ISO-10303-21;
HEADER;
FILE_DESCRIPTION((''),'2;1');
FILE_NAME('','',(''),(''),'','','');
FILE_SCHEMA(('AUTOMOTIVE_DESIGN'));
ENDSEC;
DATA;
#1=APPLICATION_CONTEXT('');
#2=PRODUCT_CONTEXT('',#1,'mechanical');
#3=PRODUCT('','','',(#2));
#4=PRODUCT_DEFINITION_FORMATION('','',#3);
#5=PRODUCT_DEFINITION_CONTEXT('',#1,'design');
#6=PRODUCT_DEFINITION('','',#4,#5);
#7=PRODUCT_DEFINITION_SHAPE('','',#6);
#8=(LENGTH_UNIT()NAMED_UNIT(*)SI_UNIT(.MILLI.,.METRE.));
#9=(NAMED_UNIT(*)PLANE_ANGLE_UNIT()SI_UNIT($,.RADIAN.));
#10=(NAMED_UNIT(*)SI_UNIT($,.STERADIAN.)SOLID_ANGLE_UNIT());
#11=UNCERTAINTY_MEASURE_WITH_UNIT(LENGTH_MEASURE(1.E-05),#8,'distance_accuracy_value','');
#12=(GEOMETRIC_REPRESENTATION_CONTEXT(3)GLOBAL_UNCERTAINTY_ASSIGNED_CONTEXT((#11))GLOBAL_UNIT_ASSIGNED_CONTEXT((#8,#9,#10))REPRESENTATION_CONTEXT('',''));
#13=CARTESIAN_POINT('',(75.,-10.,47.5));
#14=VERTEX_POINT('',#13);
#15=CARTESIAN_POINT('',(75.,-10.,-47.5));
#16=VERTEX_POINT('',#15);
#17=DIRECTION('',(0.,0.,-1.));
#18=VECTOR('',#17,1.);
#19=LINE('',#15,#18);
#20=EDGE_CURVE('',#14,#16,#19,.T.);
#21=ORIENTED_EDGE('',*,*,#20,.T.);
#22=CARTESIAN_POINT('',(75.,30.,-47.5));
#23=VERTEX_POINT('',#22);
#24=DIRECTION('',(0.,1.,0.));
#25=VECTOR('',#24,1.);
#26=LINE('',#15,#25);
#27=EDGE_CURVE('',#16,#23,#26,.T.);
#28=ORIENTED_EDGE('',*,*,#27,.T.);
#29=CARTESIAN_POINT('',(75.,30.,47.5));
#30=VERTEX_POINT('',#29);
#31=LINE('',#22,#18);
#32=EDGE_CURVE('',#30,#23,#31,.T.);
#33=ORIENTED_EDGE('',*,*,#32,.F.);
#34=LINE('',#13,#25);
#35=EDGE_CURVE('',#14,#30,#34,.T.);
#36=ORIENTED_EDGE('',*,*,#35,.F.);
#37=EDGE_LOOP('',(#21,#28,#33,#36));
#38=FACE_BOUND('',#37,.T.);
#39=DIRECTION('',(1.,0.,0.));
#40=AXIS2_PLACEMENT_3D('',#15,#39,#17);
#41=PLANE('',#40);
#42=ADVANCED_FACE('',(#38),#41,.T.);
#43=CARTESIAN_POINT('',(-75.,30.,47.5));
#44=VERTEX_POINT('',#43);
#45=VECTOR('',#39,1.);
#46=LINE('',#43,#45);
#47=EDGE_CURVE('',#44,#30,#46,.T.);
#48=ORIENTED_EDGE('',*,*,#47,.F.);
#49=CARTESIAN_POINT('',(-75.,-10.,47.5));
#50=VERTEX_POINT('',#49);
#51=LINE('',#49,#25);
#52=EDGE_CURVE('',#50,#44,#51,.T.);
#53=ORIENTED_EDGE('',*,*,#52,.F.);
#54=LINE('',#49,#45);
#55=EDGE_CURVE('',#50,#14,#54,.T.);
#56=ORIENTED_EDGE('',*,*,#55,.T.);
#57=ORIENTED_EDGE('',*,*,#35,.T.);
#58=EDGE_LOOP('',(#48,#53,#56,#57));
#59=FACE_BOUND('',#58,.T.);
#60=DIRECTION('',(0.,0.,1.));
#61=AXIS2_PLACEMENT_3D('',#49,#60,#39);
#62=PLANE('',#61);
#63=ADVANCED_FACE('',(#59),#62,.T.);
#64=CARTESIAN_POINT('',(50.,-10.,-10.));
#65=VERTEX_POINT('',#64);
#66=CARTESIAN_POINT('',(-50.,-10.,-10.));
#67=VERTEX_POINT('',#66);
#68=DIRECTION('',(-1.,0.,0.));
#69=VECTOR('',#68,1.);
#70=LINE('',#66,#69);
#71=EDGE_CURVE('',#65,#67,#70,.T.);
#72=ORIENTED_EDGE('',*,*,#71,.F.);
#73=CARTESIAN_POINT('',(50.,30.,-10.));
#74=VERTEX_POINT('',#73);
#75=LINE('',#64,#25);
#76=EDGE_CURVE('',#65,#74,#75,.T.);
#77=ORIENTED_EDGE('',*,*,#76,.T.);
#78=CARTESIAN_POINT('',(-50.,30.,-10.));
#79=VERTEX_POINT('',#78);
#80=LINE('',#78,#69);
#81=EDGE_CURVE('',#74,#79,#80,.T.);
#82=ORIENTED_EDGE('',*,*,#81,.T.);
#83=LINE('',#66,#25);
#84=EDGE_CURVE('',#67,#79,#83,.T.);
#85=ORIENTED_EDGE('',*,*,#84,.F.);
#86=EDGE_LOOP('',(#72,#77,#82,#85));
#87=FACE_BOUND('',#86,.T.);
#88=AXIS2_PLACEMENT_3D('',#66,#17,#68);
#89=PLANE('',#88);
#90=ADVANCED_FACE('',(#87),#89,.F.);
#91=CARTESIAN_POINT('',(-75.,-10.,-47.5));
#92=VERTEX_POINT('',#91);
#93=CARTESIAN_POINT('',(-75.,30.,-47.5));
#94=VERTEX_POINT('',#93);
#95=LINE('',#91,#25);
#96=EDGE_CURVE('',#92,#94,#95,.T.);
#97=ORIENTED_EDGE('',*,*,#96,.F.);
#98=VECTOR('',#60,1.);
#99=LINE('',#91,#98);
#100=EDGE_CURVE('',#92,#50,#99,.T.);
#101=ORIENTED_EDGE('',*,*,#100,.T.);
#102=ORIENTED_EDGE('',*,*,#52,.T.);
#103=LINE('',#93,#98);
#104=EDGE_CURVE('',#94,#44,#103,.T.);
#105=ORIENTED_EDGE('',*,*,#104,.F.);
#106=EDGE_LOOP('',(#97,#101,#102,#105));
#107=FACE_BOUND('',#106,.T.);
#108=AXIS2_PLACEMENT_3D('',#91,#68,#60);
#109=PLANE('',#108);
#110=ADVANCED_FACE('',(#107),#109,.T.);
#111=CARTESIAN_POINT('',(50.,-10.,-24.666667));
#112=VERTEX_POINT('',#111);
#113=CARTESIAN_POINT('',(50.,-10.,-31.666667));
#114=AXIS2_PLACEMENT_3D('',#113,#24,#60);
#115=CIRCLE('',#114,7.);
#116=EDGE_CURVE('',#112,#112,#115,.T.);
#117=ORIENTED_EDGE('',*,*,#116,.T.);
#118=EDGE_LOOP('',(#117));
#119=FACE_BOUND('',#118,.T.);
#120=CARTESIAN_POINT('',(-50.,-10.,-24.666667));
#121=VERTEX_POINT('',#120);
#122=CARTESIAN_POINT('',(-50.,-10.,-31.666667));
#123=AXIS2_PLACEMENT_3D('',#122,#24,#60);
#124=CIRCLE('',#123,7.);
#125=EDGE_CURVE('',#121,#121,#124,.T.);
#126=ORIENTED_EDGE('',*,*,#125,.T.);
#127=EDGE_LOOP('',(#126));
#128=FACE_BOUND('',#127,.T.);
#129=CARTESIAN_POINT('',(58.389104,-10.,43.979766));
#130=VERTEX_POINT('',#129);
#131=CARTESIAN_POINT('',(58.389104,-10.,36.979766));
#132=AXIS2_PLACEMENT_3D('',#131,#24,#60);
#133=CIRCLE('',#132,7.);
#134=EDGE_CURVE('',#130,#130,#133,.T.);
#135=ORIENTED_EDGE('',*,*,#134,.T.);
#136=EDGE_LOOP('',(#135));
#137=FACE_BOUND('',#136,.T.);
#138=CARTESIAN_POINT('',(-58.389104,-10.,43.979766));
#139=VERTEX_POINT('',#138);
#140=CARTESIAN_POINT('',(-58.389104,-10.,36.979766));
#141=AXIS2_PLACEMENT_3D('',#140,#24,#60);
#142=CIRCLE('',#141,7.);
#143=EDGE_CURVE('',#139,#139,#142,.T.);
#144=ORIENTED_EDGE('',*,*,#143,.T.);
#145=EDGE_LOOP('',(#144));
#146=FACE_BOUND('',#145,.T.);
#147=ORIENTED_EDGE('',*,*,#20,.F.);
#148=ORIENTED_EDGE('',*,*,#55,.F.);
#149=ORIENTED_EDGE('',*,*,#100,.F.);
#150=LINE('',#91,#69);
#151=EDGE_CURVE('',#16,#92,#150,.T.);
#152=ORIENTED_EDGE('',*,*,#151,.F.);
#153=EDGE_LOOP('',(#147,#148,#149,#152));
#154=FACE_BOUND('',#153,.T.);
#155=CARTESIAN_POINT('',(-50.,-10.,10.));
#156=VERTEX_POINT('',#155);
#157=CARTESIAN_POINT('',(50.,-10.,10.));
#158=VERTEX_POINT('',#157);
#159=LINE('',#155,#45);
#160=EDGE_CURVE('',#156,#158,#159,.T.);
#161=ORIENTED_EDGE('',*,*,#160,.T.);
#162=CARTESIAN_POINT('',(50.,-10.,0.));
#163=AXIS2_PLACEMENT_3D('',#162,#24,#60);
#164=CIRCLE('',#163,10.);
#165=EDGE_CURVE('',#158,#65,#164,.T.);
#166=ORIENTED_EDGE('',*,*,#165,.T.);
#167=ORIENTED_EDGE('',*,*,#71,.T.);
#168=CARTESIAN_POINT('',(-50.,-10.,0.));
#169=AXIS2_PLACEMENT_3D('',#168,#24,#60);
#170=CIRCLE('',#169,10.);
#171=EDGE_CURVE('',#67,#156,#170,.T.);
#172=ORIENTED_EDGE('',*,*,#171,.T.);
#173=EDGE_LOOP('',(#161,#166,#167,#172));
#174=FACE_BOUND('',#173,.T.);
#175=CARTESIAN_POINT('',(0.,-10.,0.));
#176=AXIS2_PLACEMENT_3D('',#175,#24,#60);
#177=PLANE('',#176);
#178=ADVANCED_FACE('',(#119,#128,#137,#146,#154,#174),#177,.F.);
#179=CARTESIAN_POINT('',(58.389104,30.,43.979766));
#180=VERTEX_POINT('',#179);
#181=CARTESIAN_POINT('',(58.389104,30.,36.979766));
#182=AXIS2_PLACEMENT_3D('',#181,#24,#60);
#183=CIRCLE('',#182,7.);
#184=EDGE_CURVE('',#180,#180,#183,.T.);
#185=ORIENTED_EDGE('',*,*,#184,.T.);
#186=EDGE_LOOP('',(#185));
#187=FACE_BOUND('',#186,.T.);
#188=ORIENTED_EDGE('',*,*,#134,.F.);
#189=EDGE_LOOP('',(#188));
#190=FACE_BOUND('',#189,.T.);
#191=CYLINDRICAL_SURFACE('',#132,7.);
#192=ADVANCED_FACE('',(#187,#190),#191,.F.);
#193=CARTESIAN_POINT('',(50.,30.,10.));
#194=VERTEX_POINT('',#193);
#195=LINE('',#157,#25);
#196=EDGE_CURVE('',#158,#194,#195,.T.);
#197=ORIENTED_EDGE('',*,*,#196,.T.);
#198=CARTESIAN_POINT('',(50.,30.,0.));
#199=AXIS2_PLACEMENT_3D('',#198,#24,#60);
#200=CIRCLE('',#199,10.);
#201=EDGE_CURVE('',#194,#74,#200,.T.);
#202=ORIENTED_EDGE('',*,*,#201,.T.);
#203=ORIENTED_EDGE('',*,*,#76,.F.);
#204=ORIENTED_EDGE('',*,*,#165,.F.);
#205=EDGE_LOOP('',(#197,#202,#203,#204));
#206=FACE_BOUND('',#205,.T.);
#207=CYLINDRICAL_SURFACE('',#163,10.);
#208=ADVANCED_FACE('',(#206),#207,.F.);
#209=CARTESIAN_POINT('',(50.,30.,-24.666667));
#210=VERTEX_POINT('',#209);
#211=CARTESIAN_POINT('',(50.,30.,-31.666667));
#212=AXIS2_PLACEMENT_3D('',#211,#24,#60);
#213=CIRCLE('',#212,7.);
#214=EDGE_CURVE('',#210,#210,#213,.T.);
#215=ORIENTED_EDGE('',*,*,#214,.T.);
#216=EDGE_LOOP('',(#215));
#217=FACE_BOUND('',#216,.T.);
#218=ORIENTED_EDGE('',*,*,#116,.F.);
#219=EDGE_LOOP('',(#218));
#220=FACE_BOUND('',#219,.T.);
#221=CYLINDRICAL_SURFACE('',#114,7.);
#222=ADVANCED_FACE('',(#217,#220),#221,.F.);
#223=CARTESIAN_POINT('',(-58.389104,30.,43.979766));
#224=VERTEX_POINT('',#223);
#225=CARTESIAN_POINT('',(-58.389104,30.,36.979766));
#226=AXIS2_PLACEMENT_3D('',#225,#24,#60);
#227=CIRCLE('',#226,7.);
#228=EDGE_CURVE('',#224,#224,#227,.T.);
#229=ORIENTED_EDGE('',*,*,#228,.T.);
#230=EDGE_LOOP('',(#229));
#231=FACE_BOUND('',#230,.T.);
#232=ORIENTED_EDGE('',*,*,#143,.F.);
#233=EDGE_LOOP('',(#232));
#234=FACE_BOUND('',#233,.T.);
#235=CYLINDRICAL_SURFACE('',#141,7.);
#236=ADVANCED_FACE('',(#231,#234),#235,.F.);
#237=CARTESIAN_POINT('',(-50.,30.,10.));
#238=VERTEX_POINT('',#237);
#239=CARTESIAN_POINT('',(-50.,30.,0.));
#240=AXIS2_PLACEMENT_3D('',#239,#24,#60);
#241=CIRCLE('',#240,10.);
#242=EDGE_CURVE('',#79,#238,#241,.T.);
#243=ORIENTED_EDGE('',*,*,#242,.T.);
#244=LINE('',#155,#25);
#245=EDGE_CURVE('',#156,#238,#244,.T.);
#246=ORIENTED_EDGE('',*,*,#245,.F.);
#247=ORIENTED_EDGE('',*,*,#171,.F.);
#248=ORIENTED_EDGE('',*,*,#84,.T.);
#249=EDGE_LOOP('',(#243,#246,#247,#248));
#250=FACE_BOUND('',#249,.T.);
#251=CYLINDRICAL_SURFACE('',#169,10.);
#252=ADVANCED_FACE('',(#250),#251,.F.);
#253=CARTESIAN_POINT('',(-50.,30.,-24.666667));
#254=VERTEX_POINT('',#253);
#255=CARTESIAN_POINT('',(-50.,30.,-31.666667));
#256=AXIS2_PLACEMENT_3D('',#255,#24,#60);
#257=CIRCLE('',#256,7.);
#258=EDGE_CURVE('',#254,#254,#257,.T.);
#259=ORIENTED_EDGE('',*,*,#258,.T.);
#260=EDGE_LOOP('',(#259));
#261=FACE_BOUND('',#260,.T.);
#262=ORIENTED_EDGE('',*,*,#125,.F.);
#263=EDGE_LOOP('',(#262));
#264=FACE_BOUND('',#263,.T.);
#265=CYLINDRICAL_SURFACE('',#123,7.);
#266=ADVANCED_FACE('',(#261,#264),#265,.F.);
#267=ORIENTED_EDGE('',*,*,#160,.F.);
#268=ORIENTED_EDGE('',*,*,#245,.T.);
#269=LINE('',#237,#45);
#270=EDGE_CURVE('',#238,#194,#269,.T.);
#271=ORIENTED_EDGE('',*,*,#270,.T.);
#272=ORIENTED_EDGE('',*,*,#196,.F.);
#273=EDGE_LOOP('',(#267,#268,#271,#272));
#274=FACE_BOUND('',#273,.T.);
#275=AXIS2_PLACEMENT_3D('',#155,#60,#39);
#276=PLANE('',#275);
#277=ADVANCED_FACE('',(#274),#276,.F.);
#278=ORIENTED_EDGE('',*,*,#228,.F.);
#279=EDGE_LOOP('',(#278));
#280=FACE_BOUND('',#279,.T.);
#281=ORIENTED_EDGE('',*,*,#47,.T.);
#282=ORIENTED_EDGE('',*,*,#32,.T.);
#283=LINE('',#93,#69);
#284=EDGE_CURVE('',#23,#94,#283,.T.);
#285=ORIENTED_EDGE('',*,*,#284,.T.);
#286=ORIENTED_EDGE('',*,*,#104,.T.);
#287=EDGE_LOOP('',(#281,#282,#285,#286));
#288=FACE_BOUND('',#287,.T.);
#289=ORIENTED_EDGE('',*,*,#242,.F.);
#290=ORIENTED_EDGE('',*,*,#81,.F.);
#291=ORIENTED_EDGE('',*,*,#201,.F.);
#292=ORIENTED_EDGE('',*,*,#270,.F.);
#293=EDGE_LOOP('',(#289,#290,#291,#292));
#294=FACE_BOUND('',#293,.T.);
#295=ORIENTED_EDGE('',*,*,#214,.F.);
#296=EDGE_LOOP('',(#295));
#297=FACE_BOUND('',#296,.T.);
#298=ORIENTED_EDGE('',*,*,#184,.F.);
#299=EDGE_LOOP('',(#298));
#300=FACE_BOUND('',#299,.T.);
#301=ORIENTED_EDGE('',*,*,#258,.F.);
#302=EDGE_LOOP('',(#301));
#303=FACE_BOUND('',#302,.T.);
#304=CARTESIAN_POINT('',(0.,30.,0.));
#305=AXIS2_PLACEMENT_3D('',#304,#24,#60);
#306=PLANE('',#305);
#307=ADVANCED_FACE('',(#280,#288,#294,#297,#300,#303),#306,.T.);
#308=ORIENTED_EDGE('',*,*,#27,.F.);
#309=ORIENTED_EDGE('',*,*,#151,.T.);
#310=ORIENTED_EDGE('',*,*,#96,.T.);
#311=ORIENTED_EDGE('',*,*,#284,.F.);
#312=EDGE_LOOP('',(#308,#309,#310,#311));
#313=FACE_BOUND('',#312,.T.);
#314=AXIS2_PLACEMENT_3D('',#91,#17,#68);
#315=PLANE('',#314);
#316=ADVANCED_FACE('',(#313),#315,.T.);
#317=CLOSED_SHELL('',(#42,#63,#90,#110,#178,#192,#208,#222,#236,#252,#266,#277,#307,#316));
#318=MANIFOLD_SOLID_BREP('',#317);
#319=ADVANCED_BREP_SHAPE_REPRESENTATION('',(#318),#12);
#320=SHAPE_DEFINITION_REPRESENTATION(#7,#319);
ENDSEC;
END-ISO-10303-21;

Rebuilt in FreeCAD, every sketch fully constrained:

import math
import FreeCAD as App
import Part
import Sketcher


def add_polygon(sketch, points):
    """Adds a closed chain of lines whose ends are joined by coincident constraints."""
    first, n = sketch.GeometryCount, len(points)
    for a, b in zip(points, points[1:] + points[:1]):
        sketch.addGeometry(Part.LineSegment(App.Vector(*a, 0), App.Vector(*b, 0)), False)
    for i in range(n):
        sketch.addConstraint(Sketcher.Constraint("Coincident", first + i, 2, first + (i + 1) % n, 1))

doc = App.newDocument("Part")
body = doc.addObject("PartDesign::Body", "Body")

# Sketch on XZ plane
sketch1 = body.newObject("Sketcher::SketchObject", "Sketch")
sketch1.AttachmentSupport = (doc.getObject("XZ_Plane"), [""])
sketch1.MapMode = "FlatFace"
add_polygon(sketch1, [(-75, -48), (-75, 48), (75, 48), (75, -48)])  # lines 0-3
sketch1.addGeometry(Part.Circle(App.Vector(-58, 37, 0), App.Vector(0, 0, 1), 7), False)  # 4
sketch1.addGeometry(Part.Circle(App.Vector(58, 37, 0), App.Vector(0, 0, 1), 7), False)  # 5
sketch1.addGeometry(Part.Circle(App.Vector(-50, -32, 0), App.Vector(0, 0, 1), 7), False)  # 6
sketch1.addGeometry(Part.ArcOfCircle(Part.Circle(App.Vector(-50, 0, 0), App.Vector(0, 0, 1), 10), math.radians(90), math.radians(270)), False)  # 7
sketch1.addGeometry(Part.LineSegment(App.Vector(-50, -10, 0), App.Vector(50, -10, 0)), False)  # 8
sketch1.addGeometry(Part.ArcOfCircle(Part.Circle(App.Vector(50, 0, 0), App.Vector(0, 0, 1), 10), math.radians(-90), math.radians(90)), False)  # 9
sketch1.addGeometry(Part.LineSegment(App.Vector(50, 10, 0), App.Vector(-50, 10, 0)), False)  # 10
sketch1.addGeometry(Part.Circle(App.Vector(50, -32, 0), App.Vector(0, 0, 1), 7), False)  # 11
sketch1.addConstraint([
    Sketcher.Constraint("Tangent", 7, 2, 8, 1),
    Sketcher.Constraint("Tangent", 8, 2, 9, 1),
    Sketcher.Constraint("Tangent", 9, 2, 10, 1),
    Sketcher.Constraint("Tangent", 10, 2, 7, 1),
    Sketcher.Constraint("Vertical", 0),
    Sketcher.Constraint("Horizontal", 1),
    Sketcher.Constraint("Vertical", 2),
    Sketcher.Constraint("Horizontal", 3),
    Sketcher.Constraint("Horizontal", 8),
    Sketcher.Constraint("Horizontal", 10),
    Sketcher.Constraint("Equal", 4, 5),
    Sketcher.Constraint("Equal", 5, 6),
    Sketcher.Constraint("Equal", 6, 11),
    Sketcher.Constraint("Symmetric", 7, 3, 9, 3, -1, 1),
    Sketcher.Constraint("Symmetric", 0, 2, 2, 2, -1, 1),
    Sketcher.Constraint("Symmetric", 4, 3, 5, 3, -2),
    Sketcher.Constraint("Symmetric", 6, 3, 11, 3, -2),
    Sketcher.Constraint("Vertical", 6, 3, 7, 3),
    Sketcher.Constraint("Diameter", 4, 14.0),
    Sketcher.Constraint("Radius", 7, 10.0),
    Sketcher.Constraint("DistanceX", 1, 1, 1, 2, 150.0),
    Sketcher.Constraint("DistanceX", 8, 1, 8, 2, 100.0),
    Sketcher.Constraint("DistanceY", 0, 1, 0, 2, 95.0),
    Sketcher.Constraint("DistanceX", 4, 3, 5, 3, 116.778209),
    Sketcher.Constraint("DistanceY", -1, 1, 4, 3, 36.979766),
    Sketcher.Constraint("DistanceY", 6, 3, -1, 1, 31.666667),
])
pad1 = body.newObject("PartDesign::Pad", "Pad")
pad1.Profile = sketch1
pad1.Type = "TwoLengths"
pad1.Length = 30
pad1.Length2 = 10
pad1.Reversed = True

doc.recompute()
